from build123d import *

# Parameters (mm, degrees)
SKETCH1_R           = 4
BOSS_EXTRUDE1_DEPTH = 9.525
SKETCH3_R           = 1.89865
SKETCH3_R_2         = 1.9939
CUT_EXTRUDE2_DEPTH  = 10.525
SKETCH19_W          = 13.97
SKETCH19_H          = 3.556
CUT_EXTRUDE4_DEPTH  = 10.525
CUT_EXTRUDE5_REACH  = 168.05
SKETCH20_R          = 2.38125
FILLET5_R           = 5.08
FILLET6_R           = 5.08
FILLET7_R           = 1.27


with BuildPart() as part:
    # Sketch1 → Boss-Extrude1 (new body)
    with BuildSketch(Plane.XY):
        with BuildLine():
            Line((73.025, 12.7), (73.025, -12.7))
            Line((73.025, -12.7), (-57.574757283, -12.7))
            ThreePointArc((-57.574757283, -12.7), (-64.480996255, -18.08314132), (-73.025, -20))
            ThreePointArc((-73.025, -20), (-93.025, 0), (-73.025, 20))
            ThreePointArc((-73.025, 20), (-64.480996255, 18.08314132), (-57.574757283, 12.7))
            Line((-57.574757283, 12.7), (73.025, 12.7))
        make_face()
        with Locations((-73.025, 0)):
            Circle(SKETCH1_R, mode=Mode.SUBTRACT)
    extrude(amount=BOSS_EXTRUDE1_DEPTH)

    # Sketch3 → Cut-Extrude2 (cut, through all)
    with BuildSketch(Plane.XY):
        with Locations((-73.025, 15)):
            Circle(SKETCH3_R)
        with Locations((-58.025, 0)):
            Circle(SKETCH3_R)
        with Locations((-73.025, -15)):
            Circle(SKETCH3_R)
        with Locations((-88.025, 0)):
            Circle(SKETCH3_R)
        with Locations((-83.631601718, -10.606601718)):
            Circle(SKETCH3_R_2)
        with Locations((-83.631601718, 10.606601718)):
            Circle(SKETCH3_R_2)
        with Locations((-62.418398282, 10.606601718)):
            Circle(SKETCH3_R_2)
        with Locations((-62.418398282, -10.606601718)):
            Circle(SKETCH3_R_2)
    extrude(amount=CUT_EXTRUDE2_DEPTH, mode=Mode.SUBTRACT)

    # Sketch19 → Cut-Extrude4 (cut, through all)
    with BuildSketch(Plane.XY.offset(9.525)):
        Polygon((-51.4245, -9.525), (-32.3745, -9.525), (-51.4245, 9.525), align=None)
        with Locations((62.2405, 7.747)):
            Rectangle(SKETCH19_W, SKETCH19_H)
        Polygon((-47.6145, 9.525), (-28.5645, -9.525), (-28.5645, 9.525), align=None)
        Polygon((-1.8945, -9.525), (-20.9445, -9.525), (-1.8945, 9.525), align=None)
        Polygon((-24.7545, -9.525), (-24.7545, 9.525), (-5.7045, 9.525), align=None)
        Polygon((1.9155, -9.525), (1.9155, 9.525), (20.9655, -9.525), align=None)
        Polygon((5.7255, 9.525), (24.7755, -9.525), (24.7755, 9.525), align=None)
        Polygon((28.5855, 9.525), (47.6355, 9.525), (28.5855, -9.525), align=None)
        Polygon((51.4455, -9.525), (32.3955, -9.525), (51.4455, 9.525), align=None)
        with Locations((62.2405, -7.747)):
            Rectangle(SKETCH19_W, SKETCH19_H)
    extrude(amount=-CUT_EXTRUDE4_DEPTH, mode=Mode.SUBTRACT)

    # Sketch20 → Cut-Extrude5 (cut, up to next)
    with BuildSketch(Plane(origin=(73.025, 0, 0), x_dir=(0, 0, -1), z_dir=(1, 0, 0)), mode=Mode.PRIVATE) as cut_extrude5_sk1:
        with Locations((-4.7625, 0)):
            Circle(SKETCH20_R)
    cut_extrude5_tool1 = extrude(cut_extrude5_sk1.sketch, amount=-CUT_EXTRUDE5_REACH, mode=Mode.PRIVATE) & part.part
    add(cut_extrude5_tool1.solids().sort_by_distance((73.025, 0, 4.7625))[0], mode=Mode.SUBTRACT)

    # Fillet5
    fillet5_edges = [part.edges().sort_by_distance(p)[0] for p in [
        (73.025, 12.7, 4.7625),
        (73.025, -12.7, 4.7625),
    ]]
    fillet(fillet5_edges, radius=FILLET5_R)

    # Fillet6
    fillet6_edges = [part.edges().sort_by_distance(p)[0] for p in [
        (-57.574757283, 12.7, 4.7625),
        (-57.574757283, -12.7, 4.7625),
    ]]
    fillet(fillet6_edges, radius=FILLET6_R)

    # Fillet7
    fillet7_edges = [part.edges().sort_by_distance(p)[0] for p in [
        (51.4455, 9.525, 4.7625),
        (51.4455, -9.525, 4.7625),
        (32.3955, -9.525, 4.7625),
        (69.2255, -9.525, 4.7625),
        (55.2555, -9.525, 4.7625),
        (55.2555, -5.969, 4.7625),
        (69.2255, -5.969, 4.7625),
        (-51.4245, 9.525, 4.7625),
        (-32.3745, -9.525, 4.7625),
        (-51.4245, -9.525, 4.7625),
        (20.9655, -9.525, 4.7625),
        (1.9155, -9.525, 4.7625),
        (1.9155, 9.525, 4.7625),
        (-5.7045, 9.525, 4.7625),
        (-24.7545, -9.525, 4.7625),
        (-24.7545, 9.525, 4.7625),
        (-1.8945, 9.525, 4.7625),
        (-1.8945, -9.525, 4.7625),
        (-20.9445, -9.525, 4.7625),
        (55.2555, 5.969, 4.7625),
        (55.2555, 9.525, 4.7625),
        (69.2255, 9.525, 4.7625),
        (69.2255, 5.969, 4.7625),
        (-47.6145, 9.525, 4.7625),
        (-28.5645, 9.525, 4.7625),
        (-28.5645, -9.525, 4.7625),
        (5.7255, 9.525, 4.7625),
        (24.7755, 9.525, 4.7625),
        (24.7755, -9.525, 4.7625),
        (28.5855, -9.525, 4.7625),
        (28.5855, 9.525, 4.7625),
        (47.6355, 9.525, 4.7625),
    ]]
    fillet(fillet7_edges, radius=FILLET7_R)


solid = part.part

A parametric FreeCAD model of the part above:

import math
import FreeCAD as App
import Part
import Sketcher

V = App.Vector
Q = App.Units.Quantity


def edges_at(feature, points):
    """Names of the edges that pass closest to the given points."""
    edges = feature.Shape.Edges
    near = lambda p: min(range(len(edges)), key=lambda i: edges[i].distToShape(Part.Vertex(*p))[0])
    return sorted({f"Edge{near(p) + 1}" for p in points})

doc = App.newDocument("Part")
body = doc.addObject("PartDesign::Body", "Body")

# Sketch on XY plane
sketch1 = body.newObject("Sketcher::SketchObject", "Sketch")
sketch1.AttachmentSupport = (doc.getObject("XY_Plane"), [""])
sketch1.MapMode = "FlatFace"
sketch1.addGeometry([
    Part.LineSegment(V(73, -12.7, 0), V(73, 12.7, 0)),  # 0
    Part.LineSegment(V(73, 12.7, 0), V(-57.6, 12.7, 0)),  # 1
    Part.ArcOfCircle(Part.Circle(V(-73, 0, 0), V(0, 0, 1), 20), math.radians(39), math.radians(90)),  # 2
    Part.ArcOfCircle(Part.Circle(V(-73, 0, 0), V(0, 0, 1), 20), math.radians(90), math.radians(270)),  # 3
    Part.ArcOfCircle(Part.Circle(V(-73, 0, 0), V(0, 0, 1), 20), math.radians(-90), math.radians(-39)),  # 4
    Part.LineSegment(V(-57.6, -12.7, 0), V(73, -12.7, 0)),  # 5
    Part.Circle(V(-73, 0, 0), V(0, 0, 1), 4),  # 6
], False)
sketch1.addConstraint([
    Sketcher.Constraint("Coincident", 0, 2, 1, 1),
    Sketcher.Constraint("Coincident", 1, 2, 2, 1),
    Sketcher.Constraint("Tangent", 2, 2, 3, 1),
    Sketcher.Constraint("Tangent", 3, 2, 4, 1),
    Sketcher.Constraint("Coincident", 4, 2, 5, 1),
    Sketcher.Constraint("Coincident", 5, 2, 0, 1),
    Sketcher.Constraint("Vertical", 0),
    Sketcher.Constraint("Horizontal", 1),
    Sketcher.Constraint("Horizontal", 5),
    Sketcher.Constraint("Coincident", 6, 3, 2, 3),
    Sketcher.Constraint("Equal", 2, 3),
    Sketcher.Constraint("Equal", 3, 4),
    Sketcher.Constraint("Symmetric", 2, 2, 3, 2, -1),
    Sketcher.Constraint("Vertical", 6, 3, 2, 2),
    Sketcher.Constraint("Vertical", 1, 2, 4, 2),
    Sketcher.Constraint("DistanceY", 0, 1, 0, 2, Q("1 in")),
    Sketcher.Constraint("Diameter", 6, 8.0),
    Sketcher.Constraint("Radius", 2, 20.0),
    Sketcher.Constraint("DistanceX", 3, 3, 0, 2, Q("5.75 in")),
    Sketcher.Constraint("DistanceX", 2, 3, -1, 1, Q("2.875 in")),
])
pad1 = body.newObject("PartDesign::Pad", "Pad")
pad1.Profile = sketch1
pad1.Length = Q("0.375 in")

# Sketch on XY plane
sketch2 = body.newObject("Sketcher::SketchObject", "Sketch001")
sketch2.AttachmentSupport = (doc.getObject("XY_Plane"), [""])
sketch2.MapMode = "FlatFace"
sketch2.addGeometry([
    Part.Circle(V(-73, 15, 0), V(0, 0, 1), 1.9),  # 0
    Part.Circle(V(-58, 0, 0), V(0, 0, 1), 1.9),  # 1
    Part.Circle(V(-73, -15, 0), V(0, 0, 1), 1.9),  # 2
    Part.Circle(V(-88, 0, 0), V(0, 0, 1), 1.9),  # 3
    Part.Circle(V(-83.6, -10.6, 0), V(0, 0, 1), 2),  # 4
    Part.Circle(V(-83.6, 10.6, 0), V(0, 0, 1), 2),  # 5
    Part.Circle(V(-62.4, 10.6, 0), V(0, 0, 1), 2),  # 6
    Part.Circle(V(-62.4, -10.6, 0), V(0, 0, 1), 2),  # 7
], False)
sketch2.addConstraint([
    Sketcher.Constraint("Equal", 0, 1),
    Sketcher.Constraint("Equal", 1, 2),
    Sketcher.Constraint("Equal", 2, 3),
    Sketcher.Constraint("Equal", 4, 5),
    Sketcher.Constraint("Equal", 5, 6),
    Sketcher.Constraint("Equal", 6, 7),
    Sketcher.Constraint("Symmetric", 0, 3, 2, 3, -1),
    Sketcher.Constraint("Symmetric", 4, 3, 5, 3, -1),
    Sketcher.Constraint("Symmetric", 6, 3, 7, 3, -1),
    Sketcher.Constraint("PointOnObject", 1, 3, -1),
    Sketcher.Constraint("PointOnObject", 3, 3, -1),
    Sketcher.Constraint("Horizontal", 5, 3, 6, 3),
    Sketcher.Constraint("Diameter", 4, Q("0.157 in")),
    Sketcher.Constraint("Diameter", 0, Q("0.1495 in")),
    Sketcher.Constraint("DistanceX", 0, 3, -1, 1, Q("2.875 in")),
    Sketcher.Constraint("DistanceY", -1, 1, 0, 3, 15.0),
    Sketcher.Constraint("DistanceX", 1, 3, -1, 1, 58.025),
    Sketcher.Constraint("DistanceX", 3, 3, -1, 1, 88.025),
    Sketcher.Constraint("DistanceX", 4, 3, -1, 1, 83.631602),
    Sketcher.Constraint("DistanceY", 4, 3, -1, 1, 10.606602),
    Sketcher.Constraint("DistanceX", 6, 3, -1, 1, 62.418398),
])
pocket1 = body.newObject("PartDesign::Pocket", "Pocket")
pocket1.Profile = sketch2
pocket1.Type = "ThroughAll"
pocket1.Reversed = True

# Sketch on XY plane
sketch3 = body.newObject("Sketcher::SketchObject", "Sketch002")
sketch3.AttachmentSupport = (doc.getObject("XY_Plane"), [""])
sketch3.MapMode = "FlatFace"
sketch3.AttachmentOffset = App.Placement(V(0, 0, 0.375 * 25.4), App.Rotation())
sketch3.addGeometry([
    Part.LineSegment(V(-51.4, -9.5, 0), V(-32.4, -9.5, 0)),  # 0
    Part.LineSegment(V(-32.4, -9.5, 0), V(-51.4, 9.5, 0)),  # 1
    Part.LineSegment(V(-51.4, 9.5, 0), V(-51.4, -9.5, 0)),  # 2
    Part.LineSegment(V(55.3, 9.5, 0), V(55.3, 6, 0)),  # 3
    Part.LineSegment(V(55.3, 6, 0), V(69.2, 6, 0)),  # 4
    Part.LineSegment(V(69.2, 6, 0), V(69.2, 9.5, 0)),  # 5
    Part.LineSegment(V(69.2, 9.5, 0), V(55.3, 9.5, 0)),  # 6
    Part.LineSegment(V(-47.6, 9.5, 0), V(-28.6, -9.5, 0)),  # 7
    Part.LineSegment(V(-28.6, -9.5, 0), V(-28.6, 9.5, 0)),  # 8
    Part.LineSegment(V(-28.6, 9.5, 0), V(-47.6, 9.5, 0)),  # 9
    Part.LineSegment(V(-20.9, -9.5, 0), V(-1.9, -9.5, 0)),  # 10
    Part.LineSegment(V(-1.9, -9.5, 0), V(-1.9, 9.5, 0)),  # 11
    Part.LineSegment(V(-1.9, 9.5, 0), V(-20.9, -9.5, 0)),  # 12
    Part.LineSegment(V(-24.8, 9.5, 0), V(-24.8, -9.5, 0)),  # 13
    Part.LineSegment(V(-24.8, -9.5, 0), V(-5.7, 9.5, 0)),  # 14
    Part.LineSegment(V(-5.7, 9.5, 0), V(-24.8, 9.5, 0)),  # 15
    Part.LineSegment(V(1.9, 9.5, 0), V(1.9, -9.5, 0)),  # 16
    Part.LineSegment(V(1.9, -9.5, 0), V(21, -9.5, 0)),  # 17
    Part.LineSegment(V(21, -9.5, 0), V(1.9, 9.5, 0)),  # 18
    Part.LineSegment(V(5.7, 9.5, 0), V(24.8, -9.5, 0)),  # 19
    Part.LineSegment(V(24.8, -9.5, 0), V(24.8, 9.5, 0)),  # 20
    Part.LineSegment(V(24.8, 9.5, 0), V(5.7, 9.5, 0)),  # 21
    Part.LineSegment(V(47.6, 9.5, 0), V(28.6, 9.5, 0)),  # 22
    Part.LineSegment(V(28.6, 9.5, 0), V(28.6, -9.5, 0)),  # 23
    Part.LineSegment(V(28.6, -9.5, 0), V(47.6, 9.5, 0)),  # 24
    Part.LineSegment(V(32.4, -9.5, 0), V(51.4, -9.5, 0)),  # 25
    Part.LineSegment(V(51.4, -9.5, 0), V(51.4, 9.5, 0)),  # 26
    Part.LineSegment(V(51.4, 9.5, 0), V(32.4, -9.5, 0)),  # 27
    Part.LineSegment(V(55.3, -6, 0), V(55.3, -9.5, 0)),  # 28
    Part.LineSegment(V(55.3, -9.5, 0), V(69.2, -9.5, 0)),  # 29
    Part.LineSegment(V(69.2, -9.5, 0), V(69.2, -6, 0)),  # 30
    Part.LineSegment(V(69.2, -6, 0), V(55.3, -6, 0)),  # 31
], False)
sketch3.addConstraint([
    Sketcher.Constraint("Coincident", 0, 2, 1, 1),
    Sketcher.Constraint("Coincident", 1, 2, 2, 1),
    Sketcher.Constraint("Coincident", 2, 2, 0, 1),
    Sketcher.Constraint("Coincident", 3, 2, 4, 1),
    Sketcher.Constraint("Coincident", 4, 2, 5, 1),
    Sketcher.Constraint("Coincident", 5, 2, 6, 1),
    Sketcher.Constraint("Coincident", 6, 2, 3, 1),
    Sketcher.Constraint("Coincident", 7, 2, 8, 1),
    Sketcher.Constraint("Coincident", 8, 2, 9, 1),
    Sketcher.Constraint("Coincident", 9, 2, 7, 1),
    Sketcher.Constraint("Coincident", 10, 2, 11, 1),
    Sketcher.Constraint("Coincident", 11, 2, 12, 1),
    Sketcher.Constraint("Coincident", 12, 2, 10, 1),
    Sketcher.Constraint("Coincident", 13, 2, 14, 1),
    Sketcher.Constraint("Coincident", 14, 2, 15, 1),
    Sketcher.Constraint("Coincident", 15, 2, 13, 1),
    Sketcher.Constraint("Coincident", 16, 2, 17, 1),
    Sketcher.Constraint("Coincident", 17, 2, 18, 1),
    Sketcher.Constraint("Coincident", 18, 2, 16, 1),
    Sketcher.Constraint("Coincident", 19, 2, 20, 1),
    Sketcher.Constraint("Coincident", 20, 2, 21, 1),
    Sketcher.Constraint("Coincident", 21, 2, 19, 1),
    Sketcher.Constraint("Coincident", 22, 2, 23, 1),
    Sketcher.Constraint("Coincident", 23, 2, 24, 1),
    Sketcher.Constraint("Coincident", 24, 2, 22, 1),
    Sketcher.Constraint("Coincident", 25, 2, 26, 1),
    Sketcher.Constraint("Coincident", 26, 2, 27, 1),
    Sketcher.Constraint("Coincident", 27, 2, 25, 1),
    Sketcher.Constraint("Coincident", 28, 2, 29, 1),
    Sketcher.Constraint("Coincident", 29, 2, 30, 1),
    Sketcher.Constraint("Coincident", 30, 2, 31, 1),
    Sketcher.Constraint("Coincident", 31, 2, 28, 1),
    Sketcher.Constraint("Horizontal", 0),
    Sketcher.Constraint("Vertical", 2),
    Sketcher.Constraint("Vertical", 3),
    Sketcher.Constraint("Horizontal", 4),
    Sketcher.Constraint("Vertical", 5),
    Sketcher.Constraint("Horizontal", 6),
    Sketcher.Constraint("Vertical", 8),
    Sketcher.Constraint("Horizontal", 9),
    Sketcher.Constraint("Horizontal", 10),
    Sketcher.Constraint("Vertical", 11),
    Sketcher.Constraint("Vertical", 13),
    Sketcher.Constraint("Horizontal", 15),
    Sketcher.Constraint("Vertical", 16),
    Sketcher.Constraint("Horizontal", 17),
    Sketcher.Constraint("Vertical", 20),
    Sketcher.Constraint("Horizontal", 21),
    Sketcher.Constraint("Horizontal", 22),
    Sketcher.Constraint("Vertical", 23),
    Sketcher.Constraint("Horizontal", 25),
    Sketcher.Constraint("Vertical", 26),
    Sketcher.Constraint("Vertical", 28),
    Sketcher.Constraint("Horizontal", 29),
    Sketcher.Constraint("Vertical", 30),
    Sketcher.Constraint("Horizontal", 31),
    Sketcher.Constraint("Symmetric", 6, 2, 28, 2, -1),
    Sketcher.Constraint("Symmetric", 4, 2, 30, 2, -1),
    Sketcher.Constraint("Parallel", 1, 7),
    Sketcher.Constraint("Perpendicular", 7, 12),
    Sketcher.Constraint("Parallel", 12, 14),
    Sketcher.Constraint("Perpendicular", 14, 18),
    Sketcher.Constraint("Parallel", 18, 19),
    Sketcher.Constraint("Perpendicular", 19, 24),
    Sketcher.Constraint("Parallel", 24, 27),
    Sketcher.Constraint("Horizontal", 1, 2, 5, 2),
    Sketcher.Constraint("Horizontal", 2, 2, 7, 2),
    Sketcher.Constraint("Horizontal", 6, 2, 8, 2),
    Sketcher.Constraint("Horizontal", 7, 2, 10, 2),
    Sketcher.Constraint("Horizontal", 9, 2, 11, 2),
    Sketcher.Constraint("Horizontal", 12, 2, 13, 2),
    Sketcher.Constraint("Horizontal", 11, 2, 14, 2),
    Sketcher.Constraint("Horizontal", 13, 2, 16, 2),
    Sketcher.Constraint("Horizontal", 15, 2, 18, 2),
    Sketcher.Constraint("Horizontal", 17, 2, 19, 2),
    Sketcher.Constraint("Horizontal", 18, 2, 20, 2),
    Sketcher.Constraint("Horizontal", 21, 2, 22, 2),
    Sketcher.Constraint("Horizontal", 19, 2, 23, 2),
    Sketcher.Constraint("Horizontal", 23, 2, 25, 2),
    Sketcher.Constraint("Horizontal", 24, 2, 26, 2),
    Sketcher.Constraint("Horizontal", 27, 2, 28, 2),
    Sketcher.Constraint("Equal", 9, 10),
    Sketcher.Constraint("DistanceX", 0, 2, 4, 2, Q("4 in")),
    Sketcher.Constraint("DistanceX", 0, 1, 0, 2, Q("0.75 in")),
    Sketcher.Constraint("DistanceX", 4, 1, 4, 2, Q("0.55 in")),
    Sketcher.Constraint("DistanceY", 3, 2, 3, 1, Q("0.14 in")),
    Sketcher.Constraint("DistanceX", 2, 2, 7, 2, Q("0.9 in")),
    Sketcher.Constraint("DistanceX", 0, 2, 10, 2, Q("1.2 in")),
    Sketcher.Constraint("DistanceX", 0, 2, 13, 2, Q("0.3 in")),
    Sketcher.Constraint("DistanceX", 14, 2, 16, 2, Q("0.3 in")),
    Sketcher.Constraint("DistanceX", 16, 2, 19, 2, Q("0.9 in")),
    Sketcher.Constraint("DistanceX", 17, 2, 22, 2, Q("0.3 in")),
    Sketcher.Constraint("DistanceX", 23, 2, 25, 2, Q("0.9 in")),
    Sketcher.Constraint("DistanceX", 0, 2, -1, 1, 32.3745),
])
pocket2 = body.newObject("PartDesign::Pocket", "Pocket001")
pocket2.Profile = sketch3
pocket2.Type = "ThroughAll"

# Sketch on YZ plane
sketch4 = body.newObject("Sketcher::SketchObject", "Sketch003")
sketch4.AttachmentSupport = (doc.getObject("YZ_Plane"), [""])
sketch4.MapMode = "FlatFace"
sketch4.AttachmentOffset = App.Placement(V(0, 0, 2.875 * 25.4), App.Rotation())
sketch4.addGeometry(Part.Circle(V(0, 4.8, 0), V(0, 0, 1), 2.4), False)
sketch4.addConstraint([
    Sketcher.Constraint("PointOnObject", 0, 3, -2),
    Sketcher.Constraint("Diameter", 0, Q("0.1875 in")),
    Sketcher.Constraint("DistanceY", -1, 1, 0, 3, Q("0.1875 in")),
])
pocket3 = body.newObject("PartDesign::Pocket", "Pocket002")
pocket3.Profile = sketch4
pocket3.Type = "UpToFirst"
doc.recompute()

fillet = body.newObject("PartDesign::Fillet", "Fillet")
fillet.Base = (pocket3, edges_at(pocket3, [(73.025, 12.7, 4.763), (73.025, -12.7, 4.763)]))
fillet.Radius = Q("0.2 in")
doc.recompute()

fillet2 = body.newObject("PartDesign::Fillet", "Fillet001")
fillet2.Base = (fillet, edges_at(fillet, [(-57.575, 12.7, 4.763), (-57.575, -12.7, 4.763)]))
fillet2.Radius = Q("0.2 in")
doc.recompute()

fillet3 = body.newObject("PartDesign::Fillet", "Fillet002")
fillet3.Base = (fillet2, edges_at(fillet2, [
    (51.446, 9.525, 4.763),
    (51.446, -9.525, 4.763),
    (32.395, -9.525, 4.763),
    (69.225, -9.525, 4.763),
    (55.255, -9.525, 4.763),
    (55.255, -5.969, 4.763),
    (69.225, -5.969, 4.763),
    (-51.425, 9.525, 4.763),
    (-32.374, -9.525, 4.763),
    (-51.425, -9.525, 4.763),
    (20.965, -9.525, 4.763),
    (1.915, -9.525, 4.763),
    (1.915, 9.525, 4.763),
    (-5.705, 9.525, 4.763),
    (-24.755, -9.525, 4.763),
    (-24.755, 9.525, 4.763),
    (-1.895, 9.525, 4.763),
    (-1.895, -9.525, 4.763),
    (-20.945, -9.525, 4.763),
    (55.255, 5.969, 4.763),
    (55.255, 9.525, 4.763),
    (69.225, 9.525, 4.763),
    (69.225, 5.969, 4.763),
    (-47.614, 9.525, 4.763),
    (-28.564, 9.525, 4.763),
    (-28.564, -9.525, 4.763),
    (5.726, 9.525, 4.763),
    (24.776, 9.525, 4.763),
    (24.776, -9.525, 4.763),
    (28.585, -9.525, 4.763),
    (28.585, 9.525, 4.763),
    (47.636, 9.525, 4.763),
]))
fillet3.Radius = Q("0.05 in")

doc.recompute()
